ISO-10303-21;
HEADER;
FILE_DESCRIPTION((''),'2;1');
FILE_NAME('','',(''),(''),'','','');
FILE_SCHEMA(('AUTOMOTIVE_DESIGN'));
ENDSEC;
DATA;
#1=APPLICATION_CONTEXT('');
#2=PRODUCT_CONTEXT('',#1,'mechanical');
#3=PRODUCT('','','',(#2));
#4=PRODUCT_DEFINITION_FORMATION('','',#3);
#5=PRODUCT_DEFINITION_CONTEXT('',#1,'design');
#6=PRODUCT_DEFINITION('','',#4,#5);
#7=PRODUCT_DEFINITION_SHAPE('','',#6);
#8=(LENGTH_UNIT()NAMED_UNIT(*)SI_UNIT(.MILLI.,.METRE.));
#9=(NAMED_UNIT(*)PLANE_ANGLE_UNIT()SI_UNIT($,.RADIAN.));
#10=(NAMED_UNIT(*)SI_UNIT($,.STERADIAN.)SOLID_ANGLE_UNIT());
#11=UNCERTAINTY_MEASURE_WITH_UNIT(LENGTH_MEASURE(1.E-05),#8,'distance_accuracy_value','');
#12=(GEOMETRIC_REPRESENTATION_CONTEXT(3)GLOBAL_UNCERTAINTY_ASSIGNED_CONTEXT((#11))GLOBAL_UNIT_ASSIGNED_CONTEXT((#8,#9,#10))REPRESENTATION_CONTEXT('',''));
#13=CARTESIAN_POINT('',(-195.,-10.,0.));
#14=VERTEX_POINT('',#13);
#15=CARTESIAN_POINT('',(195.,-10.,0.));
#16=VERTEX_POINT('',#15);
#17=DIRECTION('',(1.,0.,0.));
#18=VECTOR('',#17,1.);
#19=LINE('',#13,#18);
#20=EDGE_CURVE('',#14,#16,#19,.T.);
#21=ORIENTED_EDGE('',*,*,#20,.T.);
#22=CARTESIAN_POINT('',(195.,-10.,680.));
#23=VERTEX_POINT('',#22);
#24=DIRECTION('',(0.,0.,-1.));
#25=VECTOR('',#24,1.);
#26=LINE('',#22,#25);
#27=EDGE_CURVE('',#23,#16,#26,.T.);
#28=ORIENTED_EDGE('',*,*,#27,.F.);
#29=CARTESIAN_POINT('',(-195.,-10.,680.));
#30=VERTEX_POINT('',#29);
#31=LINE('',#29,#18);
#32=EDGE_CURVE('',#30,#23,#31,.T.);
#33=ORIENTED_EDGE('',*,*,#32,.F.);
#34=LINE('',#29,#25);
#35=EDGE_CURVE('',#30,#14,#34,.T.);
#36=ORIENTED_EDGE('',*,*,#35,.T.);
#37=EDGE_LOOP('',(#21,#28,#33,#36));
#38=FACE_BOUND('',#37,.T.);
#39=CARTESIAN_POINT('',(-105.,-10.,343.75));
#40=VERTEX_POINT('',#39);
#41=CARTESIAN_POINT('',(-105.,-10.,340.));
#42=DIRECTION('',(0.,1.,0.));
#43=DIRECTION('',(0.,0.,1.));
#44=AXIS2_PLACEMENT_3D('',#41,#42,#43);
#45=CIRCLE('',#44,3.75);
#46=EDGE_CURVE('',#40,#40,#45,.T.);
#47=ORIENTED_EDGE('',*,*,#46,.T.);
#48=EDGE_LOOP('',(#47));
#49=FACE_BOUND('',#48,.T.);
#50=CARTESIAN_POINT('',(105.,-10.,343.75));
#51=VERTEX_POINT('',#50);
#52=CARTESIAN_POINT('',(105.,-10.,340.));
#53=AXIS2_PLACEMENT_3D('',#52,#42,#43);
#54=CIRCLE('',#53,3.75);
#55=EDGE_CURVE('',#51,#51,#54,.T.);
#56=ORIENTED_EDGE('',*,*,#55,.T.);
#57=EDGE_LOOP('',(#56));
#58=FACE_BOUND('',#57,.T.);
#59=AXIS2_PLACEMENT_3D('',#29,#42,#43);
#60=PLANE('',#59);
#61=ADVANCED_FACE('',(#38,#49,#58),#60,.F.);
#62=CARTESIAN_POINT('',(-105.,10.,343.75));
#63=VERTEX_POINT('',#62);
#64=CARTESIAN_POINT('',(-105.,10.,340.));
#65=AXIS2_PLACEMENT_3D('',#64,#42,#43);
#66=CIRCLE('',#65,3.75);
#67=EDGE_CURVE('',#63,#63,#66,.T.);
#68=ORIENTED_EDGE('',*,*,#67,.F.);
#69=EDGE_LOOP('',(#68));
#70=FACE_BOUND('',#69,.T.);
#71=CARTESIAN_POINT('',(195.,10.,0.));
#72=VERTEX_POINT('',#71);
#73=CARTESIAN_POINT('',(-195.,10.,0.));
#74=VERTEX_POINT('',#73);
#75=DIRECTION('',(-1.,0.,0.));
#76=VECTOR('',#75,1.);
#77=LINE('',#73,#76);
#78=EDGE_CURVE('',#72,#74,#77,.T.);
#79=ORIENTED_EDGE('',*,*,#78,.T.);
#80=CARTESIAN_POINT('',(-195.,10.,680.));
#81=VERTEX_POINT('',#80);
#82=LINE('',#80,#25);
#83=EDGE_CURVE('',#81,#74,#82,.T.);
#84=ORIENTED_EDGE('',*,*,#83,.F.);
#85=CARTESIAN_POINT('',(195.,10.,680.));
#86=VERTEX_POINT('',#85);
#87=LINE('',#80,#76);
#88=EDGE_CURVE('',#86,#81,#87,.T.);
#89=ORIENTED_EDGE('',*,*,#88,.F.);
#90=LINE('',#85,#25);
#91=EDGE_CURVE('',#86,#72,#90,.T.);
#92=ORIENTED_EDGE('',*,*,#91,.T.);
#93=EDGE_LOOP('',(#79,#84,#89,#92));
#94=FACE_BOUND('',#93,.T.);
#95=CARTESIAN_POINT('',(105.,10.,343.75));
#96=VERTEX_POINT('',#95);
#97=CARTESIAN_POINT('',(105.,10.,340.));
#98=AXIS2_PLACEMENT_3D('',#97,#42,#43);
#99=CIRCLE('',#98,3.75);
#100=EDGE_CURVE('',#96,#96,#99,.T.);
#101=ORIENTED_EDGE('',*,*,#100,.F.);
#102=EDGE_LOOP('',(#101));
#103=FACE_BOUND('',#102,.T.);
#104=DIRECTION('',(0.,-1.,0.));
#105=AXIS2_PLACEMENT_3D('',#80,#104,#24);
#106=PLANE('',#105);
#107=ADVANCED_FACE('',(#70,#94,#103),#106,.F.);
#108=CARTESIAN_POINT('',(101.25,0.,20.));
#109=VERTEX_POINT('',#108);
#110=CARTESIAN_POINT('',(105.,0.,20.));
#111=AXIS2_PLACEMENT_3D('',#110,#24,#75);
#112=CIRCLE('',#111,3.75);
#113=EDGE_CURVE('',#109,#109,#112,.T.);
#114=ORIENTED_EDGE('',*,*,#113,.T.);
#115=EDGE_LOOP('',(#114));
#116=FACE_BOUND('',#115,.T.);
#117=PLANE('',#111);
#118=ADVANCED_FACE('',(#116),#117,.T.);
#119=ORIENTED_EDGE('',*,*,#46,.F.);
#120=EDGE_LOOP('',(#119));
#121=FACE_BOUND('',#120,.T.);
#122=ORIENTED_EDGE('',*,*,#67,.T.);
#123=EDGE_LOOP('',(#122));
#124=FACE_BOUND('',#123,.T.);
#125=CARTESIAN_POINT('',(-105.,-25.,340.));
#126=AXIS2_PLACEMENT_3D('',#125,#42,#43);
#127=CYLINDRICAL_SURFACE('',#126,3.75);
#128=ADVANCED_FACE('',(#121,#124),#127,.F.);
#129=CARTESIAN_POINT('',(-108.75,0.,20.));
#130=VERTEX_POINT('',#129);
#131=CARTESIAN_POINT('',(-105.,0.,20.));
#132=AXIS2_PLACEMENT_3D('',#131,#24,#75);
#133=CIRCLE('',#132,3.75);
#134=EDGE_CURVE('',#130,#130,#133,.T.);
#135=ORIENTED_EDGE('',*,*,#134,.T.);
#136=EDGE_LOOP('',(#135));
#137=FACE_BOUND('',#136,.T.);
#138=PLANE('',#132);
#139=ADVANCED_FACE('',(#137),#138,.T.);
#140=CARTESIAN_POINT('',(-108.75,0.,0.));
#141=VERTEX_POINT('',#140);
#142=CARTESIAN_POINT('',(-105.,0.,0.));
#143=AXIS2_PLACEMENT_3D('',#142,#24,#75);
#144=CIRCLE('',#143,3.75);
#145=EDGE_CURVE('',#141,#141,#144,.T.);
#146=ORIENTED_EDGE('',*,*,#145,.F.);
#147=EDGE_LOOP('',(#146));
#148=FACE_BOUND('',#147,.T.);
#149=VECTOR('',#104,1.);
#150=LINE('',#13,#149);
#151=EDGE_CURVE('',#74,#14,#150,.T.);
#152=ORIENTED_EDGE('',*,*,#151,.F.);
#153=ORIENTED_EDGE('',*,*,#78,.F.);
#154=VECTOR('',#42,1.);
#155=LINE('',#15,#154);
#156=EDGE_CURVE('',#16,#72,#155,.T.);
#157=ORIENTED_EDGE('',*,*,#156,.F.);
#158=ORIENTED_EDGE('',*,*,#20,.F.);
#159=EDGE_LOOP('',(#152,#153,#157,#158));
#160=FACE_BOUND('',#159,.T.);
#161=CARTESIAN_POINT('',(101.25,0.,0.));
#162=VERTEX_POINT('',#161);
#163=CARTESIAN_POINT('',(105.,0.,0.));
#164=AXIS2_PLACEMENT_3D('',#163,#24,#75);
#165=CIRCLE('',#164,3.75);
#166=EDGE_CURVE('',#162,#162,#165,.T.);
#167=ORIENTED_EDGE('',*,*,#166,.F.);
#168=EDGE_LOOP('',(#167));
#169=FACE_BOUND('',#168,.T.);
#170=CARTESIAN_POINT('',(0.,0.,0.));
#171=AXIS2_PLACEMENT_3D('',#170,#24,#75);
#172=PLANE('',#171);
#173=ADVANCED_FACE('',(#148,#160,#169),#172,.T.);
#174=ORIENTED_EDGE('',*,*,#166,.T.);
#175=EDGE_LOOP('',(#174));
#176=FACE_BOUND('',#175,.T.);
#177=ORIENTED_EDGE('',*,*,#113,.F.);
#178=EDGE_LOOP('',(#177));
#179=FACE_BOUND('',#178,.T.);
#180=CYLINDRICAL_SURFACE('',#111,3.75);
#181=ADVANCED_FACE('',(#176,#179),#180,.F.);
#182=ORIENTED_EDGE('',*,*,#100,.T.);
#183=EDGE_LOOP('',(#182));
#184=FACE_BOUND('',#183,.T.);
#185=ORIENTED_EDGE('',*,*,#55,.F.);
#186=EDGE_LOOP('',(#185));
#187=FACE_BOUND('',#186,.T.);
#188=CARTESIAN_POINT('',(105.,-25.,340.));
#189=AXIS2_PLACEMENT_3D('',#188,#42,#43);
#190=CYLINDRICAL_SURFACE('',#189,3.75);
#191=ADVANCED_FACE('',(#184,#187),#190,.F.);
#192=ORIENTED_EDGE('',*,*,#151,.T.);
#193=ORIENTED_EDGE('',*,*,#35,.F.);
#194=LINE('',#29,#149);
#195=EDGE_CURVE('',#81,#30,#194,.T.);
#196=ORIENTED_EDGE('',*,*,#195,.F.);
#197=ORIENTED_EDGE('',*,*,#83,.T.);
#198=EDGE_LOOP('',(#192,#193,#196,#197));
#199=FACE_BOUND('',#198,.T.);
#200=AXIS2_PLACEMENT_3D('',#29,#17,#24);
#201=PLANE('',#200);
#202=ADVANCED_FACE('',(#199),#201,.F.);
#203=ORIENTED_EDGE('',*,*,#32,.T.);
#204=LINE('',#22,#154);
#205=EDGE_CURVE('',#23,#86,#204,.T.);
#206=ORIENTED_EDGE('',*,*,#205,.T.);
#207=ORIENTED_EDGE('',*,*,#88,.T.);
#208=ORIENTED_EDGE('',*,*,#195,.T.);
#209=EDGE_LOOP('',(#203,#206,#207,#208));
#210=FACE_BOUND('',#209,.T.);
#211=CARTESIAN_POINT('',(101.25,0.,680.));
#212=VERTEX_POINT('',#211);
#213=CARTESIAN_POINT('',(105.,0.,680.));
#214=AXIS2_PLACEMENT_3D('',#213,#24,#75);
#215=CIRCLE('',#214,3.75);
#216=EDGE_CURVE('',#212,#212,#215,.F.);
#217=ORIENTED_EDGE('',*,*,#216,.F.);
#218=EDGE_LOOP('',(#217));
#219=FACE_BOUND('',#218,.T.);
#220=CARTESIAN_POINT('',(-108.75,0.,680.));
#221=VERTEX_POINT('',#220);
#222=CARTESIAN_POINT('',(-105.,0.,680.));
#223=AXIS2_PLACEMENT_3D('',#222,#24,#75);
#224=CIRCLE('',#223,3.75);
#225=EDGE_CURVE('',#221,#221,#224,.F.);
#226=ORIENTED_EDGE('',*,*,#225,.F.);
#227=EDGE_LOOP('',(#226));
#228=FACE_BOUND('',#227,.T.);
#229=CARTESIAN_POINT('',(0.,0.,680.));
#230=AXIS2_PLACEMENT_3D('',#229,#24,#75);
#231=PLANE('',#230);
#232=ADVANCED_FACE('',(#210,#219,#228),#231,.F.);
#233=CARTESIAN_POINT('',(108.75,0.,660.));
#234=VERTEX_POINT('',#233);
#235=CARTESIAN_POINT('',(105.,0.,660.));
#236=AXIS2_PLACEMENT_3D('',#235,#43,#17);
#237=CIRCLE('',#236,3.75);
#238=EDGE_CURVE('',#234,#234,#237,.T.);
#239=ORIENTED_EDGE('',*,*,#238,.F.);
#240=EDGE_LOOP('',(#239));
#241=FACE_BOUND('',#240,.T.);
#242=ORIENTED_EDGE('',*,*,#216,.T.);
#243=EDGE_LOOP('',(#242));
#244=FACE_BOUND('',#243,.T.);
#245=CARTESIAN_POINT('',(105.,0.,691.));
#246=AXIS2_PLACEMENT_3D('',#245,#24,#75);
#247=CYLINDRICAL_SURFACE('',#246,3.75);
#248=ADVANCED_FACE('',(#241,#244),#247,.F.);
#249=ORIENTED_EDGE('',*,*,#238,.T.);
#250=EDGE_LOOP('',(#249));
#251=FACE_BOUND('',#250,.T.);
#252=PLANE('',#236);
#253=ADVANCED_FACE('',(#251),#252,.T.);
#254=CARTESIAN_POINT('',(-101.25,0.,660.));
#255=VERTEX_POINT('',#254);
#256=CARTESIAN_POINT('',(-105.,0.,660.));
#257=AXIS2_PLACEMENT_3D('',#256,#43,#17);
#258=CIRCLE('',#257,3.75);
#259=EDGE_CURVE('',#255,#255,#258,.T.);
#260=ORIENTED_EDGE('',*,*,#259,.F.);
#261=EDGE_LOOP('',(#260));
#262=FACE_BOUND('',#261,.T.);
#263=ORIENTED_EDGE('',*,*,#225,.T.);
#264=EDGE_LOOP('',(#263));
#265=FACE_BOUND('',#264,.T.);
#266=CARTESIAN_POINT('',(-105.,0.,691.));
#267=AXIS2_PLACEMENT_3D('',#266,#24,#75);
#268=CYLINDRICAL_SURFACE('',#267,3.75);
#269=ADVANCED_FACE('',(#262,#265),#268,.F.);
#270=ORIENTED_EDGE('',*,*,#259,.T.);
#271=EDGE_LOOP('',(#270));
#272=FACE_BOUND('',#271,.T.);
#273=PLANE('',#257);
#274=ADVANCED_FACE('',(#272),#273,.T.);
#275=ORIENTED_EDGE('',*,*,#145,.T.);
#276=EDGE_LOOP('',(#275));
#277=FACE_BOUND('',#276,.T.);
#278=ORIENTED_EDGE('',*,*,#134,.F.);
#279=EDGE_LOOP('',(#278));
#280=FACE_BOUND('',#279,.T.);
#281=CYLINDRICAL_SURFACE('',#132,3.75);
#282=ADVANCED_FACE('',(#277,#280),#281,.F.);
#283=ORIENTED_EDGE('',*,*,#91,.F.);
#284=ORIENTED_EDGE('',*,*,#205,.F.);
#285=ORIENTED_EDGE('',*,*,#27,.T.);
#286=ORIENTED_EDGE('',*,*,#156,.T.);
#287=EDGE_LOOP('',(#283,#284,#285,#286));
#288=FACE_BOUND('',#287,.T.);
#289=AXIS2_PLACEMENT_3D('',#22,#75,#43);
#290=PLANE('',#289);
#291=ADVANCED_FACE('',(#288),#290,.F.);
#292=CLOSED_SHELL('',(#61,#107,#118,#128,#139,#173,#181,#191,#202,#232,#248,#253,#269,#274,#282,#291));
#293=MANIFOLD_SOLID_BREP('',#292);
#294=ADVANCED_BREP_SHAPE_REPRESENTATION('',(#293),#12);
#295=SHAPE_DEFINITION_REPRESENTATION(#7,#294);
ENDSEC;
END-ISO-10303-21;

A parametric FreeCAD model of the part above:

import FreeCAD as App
import Part
import Sketcher

V = App.Vector
Q = App.Units.Quantity


def add_polygon(sketch, points):
    """Adds a closed chain of lines whose ends are joined by coincident constraints."""
    first, n = sketch.GeometryCount, len(points)
    for a, b in zip(points, points[1:] + points[:1]):
        sketch.addGeometry(Part.LineSegment(App.Vector(*a, 0), App.Vector(*b, 0)), False)
    for i in range(n):
        sketch.addConstraint(Sketcher.Constraint("Coincident", first + i, 2, first + (i + 1) % n, 1))

doc = App.newDocument("Part")
body = doc.addObject("PartDesign::Body", "Body")

sketch1 = body.newObject("Sketcher::SketchObject", "Sketch")
sketch1.AttachmentSupport = (doc.getObject("XY_Plane"), [""])
sketch1.MapMode = "FlatFace"
add_polygon(sketch1, [(-195, 10), (-195, -10), (195, -10), (195, 10)])
sketch1.addConstraint(Sketcher.Constraint("Vertical", 0))
sketch1.addConstraint(Sketcher.Constraint("Horizontal", 1))
sketch1.addConstraint(Sketcher.Constraint("Vertical", 2))
sketch1.addConstraint(Sketcher.Constraint("Horizontal", 3))
sketch1.addConstraint(Sketcher.Constraint("Symmetric", 0, 2, 2, 2, -1, 1))
sketch1.addConstraint(Sketcher.Constraint("DistanceX", 1, 1, 1, 2, Q("390 mm")))
sketch1.addConstraint(Sketcher.Constraint("DistanceY", 0, 2, 0, 1, Q("20 mm")))
pad1 = body.newObject("PartDesign::Pad", "Pad")
pad1.Profile = sketch1
pad1.Length = 680

sketch2 = body.newObject("Sketcher::SketchObject", "Sketch001")
sketch2.AttachmentSupport = (doc.getObject("XY_Plane"), [""])
sketch2.MapMode = "FlatFace"
sketch2.AttachmentOffset = App.Placement(V(0, 0, 680), App.Rotation())
sketch2.addGeometry(Part.Circle(V(-105, 0, 0), V(0, 0, 1), 3.8), False)
sketch2.addGeometry(Part.Circle(V(105, 0, 0), V(0, 0, 1), 3.8), False)
sketch2.addConstraint(Sketcher.Constraint("Equal", 0, 1))
sketch2.addConstraint(Sketcher.Constraint("Symmetric", 0, 3, 1, 3, -1, 1))
sketch2.addConstraint(Sketcher.Constraint("PointOnObject", 0, 3, -1))
sketch2.addConstraint(Sketcher.Constraint("Diameter", 0, Q("7.5 mm")))
sketch2.addConstraint(Sketcher.Constraint("DistanceX", 0, 3, -1, 1, Q("105 mm")))
pocket1 = body.newObject("PartDesign::Pocket", "Pocket")
pocket1.Profile = sketch2
pocket1.Type = "TwoLengths"
pocket1.Length = 11
pocket1.Length2 = 20
pocket1.Reversed = True

sketch3 = body.newObject("Sketcher::SketchObject", "Sketch002")
sketch3.AttachmentSupport = (doc.getObject("XY_Plane"), [""])
sketch3.MapMode = "FlatFace"
sketch3.AttachmentOffset = App.Placement(V(0, 0, 20), App.Rotation())
sketch3.addGeometry(Part.Circle(V(105, 0, 0), V(0, 0, 1), 3.8), False)
sketch3.addGeometry(Part.Circle(V(-105, 0, 0), V(0, 0, 1), 3.8), False)
sketch3.addConstraint(Sketcher.Constraint("Equal", 0, 1))
sketch3.addConstraint(Sketcher.Constraint("Symmetric", 0, 3, 1, 3, -1, 1))
sketch3.addConstraint(Sketcher.Constraint("PointOnObject", 0, 3, -1))
sketch3.addConstraint(Sketcher.Constraint("Diameter", 0, Q("7.5 mm")))
sketch3.addConstraint(Sketcher.Constraint("DistanceX", -1, 1, 0, 3, Q("105 mm")))
pocket2 = body.newObject("PartDesign::Pocket", "Pocket001")
pocket2.Profile = sketch3
pocket2.Length = 20

sketch4 = body.newObject("Sketcher::SketchObject", "Sketch003")
sketch4.AttachmentSupport = (doc.getObject("XZ_Plane"), [""])
sketch4.MapMode = "FlatFace"
sketch4.AttachmentOffset = App.Placement(V(0, 0, -10), App.Rotation())
sketch4.addGeometry(Part.Circle(V(-105, 340, 0), V(0, 0, 1), 3.8), False)
sketch4.addGeometry(Part.Circle(V(105, 340, 0), V(0, 0, 1), 3.8), False)
sketch4.addConstraint(Sketcher.Constraint("Equal", 0, 1))
sketch4.addConstraint(Sketcher.Constraint("Symmetric", 0, 3, 1, 3, -2))
sketch4.addConstraint(Sketcher.Constraint("Diameter", 0, Q("7.5 mm")))
sketch4.addConstraint(Sketcher.Constraint("DistanceX", 0, 3, -1, 1, Q("105 mm")))
sketch4.addConstraint(Sketcher.Constraint("DistanceY", -1, 1, 0, 3, Q("340 mm")))
pocket3 = body.newObject("PartDesign::Pocket", "Pocket002")
pocket3.Profile = sketch4
pocket3.Length = 35
pocket3.Reversed = True

doc.recompute()
